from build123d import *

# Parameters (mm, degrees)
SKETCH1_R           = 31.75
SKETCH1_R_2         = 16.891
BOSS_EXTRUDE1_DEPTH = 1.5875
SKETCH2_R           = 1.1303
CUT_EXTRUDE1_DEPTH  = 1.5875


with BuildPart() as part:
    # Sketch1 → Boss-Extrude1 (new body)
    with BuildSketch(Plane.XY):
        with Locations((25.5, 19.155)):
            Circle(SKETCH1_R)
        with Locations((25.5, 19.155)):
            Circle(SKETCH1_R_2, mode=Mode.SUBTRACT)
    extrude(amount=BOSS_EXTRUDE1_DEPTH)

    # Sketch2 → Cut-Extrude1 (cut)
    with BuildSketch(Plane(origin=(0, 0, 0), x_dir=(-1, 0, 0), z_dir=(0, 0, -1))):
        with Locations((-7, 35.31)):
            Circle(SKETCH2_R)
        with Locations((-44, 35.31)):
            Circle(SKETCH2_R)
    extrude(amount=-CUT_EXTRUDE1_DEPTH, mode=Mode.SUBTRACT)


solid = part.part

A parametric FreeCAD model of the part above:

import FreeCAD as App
import Part
import Sketcher
Q = App.Units.Quantity

doc = App.newDocument("Part")
body = doc.addObject("PartDesign::Body", "Body")

# Sketch on XY plane
sketch1 = body.newObject("Sketcher::SketchObject", "Sketch")
sketch1.AttachmentSupport = (doc.getObject("XY_Plane"), [""])
sketch1.MapMode = "FlatFace"
sketch1.addGeometry([
    Part.Circle(App.Vector(26, 19, 0), App.Vector(0, 0, 1), 32),
    Part.Circle(App.Vector(26, 19, 0), App.Vector(0, 0, 1), 17),
], False)
sketch1.addConstraint([
    Sketcher.Constraint("Coincident", 1, 3, 0, 3),
    Sketcher.Constraint("Diameter", 0, Q("2.5 in")),
    Sketcher.Constraint("Diameter", 1, Q("1.33 in")),
    Sketcher.Constraint("DistanceX", -1, 1, 0, 3, 25.5),
    Sketcher.Constraint("DistanceY", -1, 1, 0, 3, 19.155),
])
pad1 = body.newObject("PartDesign::Pad", "Pad")
pad1.Profile = sketch1
pad1.Length = Q("0.0625 in")

# Sketch on XY plane
sketch2 = body.newObject("Sketcher::SketchObject", "Sketch001")
sketch2.AttachmentSupport = (doc.getObject("XY_Plane"), [""])
sketch2.MapMode = "FlatFace"
sketch2.addGeometry([
    Part.Circle(App.Vector(7, 35.3, 0), App.Vector(0, 0, 1), 1.1),
    Part.Circle(App.Vector(44, 35.3, 0), App.Vector(0, 0, 1), 1.1),
], False)
sketch2.addConstraint([
    Sketcher.Constraint("Equal", 0, 1),
    Sketcher.Constraint("Horizontal", 0, 3, 1, 3),
    Sketcher.Constraint("Diameter", 0, Q("0.089 in")),
    Sketcher.Constraint("DistanceX", -1, 1, 0, 3, 7.0),
    Sketcher.Constraint("DistanceY", -1, 1, 0, 3, 35.31),
    Sketcher.Constraint("DistanceX", -1, 1, 1, 3, 44.0),
])
pocket1 = body.newObject("PartDesign::Pocket", "Pocket")
pocket1.Profile = sketch2
pocket1.Length = Q("0.0625 in")
pocket1.Reversed = True

doc.recompute()
